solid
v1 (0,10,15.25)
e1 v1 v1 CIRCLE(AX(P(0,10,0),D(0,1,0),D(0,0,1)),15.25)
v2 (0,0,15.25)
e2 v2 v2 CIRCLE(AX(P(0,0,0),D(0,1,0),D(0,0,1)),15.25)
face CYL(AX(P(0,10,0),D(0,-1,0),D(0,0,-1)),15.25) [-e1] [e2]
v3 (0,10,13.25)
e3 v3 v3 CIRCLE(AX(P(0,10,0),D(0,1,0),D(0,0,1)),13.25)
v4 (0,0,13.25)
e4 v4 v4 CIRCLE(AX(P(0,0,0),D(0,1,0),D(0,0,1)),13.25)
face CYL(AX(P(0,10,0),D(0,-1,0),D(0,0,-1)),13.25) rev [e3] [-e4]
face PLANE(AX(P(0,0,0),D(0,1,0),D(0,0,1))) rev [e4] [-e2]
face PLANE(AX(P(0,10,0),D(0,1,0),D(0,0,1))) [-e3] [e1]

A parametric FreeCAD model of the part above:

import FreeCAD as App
import Part
import Sketcher

V = App.Vector

doc = App.newDocument("Part")
params = doc.addObject("Spreadsheet::Sheet", "Params")
for row, (alias, value) in enumerate([
    ("sketch1_diameter", "30.5 mm"),
    ("sketch1_diameter2", "26.5 mm"),
    ("pad1_length", "10 mm"),
], start=1):
    params.set(f"A{row}", alias)
    params.set(f"B{row}", "=" + value)
    params.setAlias(f"B{row}", alias)

body = doc.addObject("PartDesign::Body", "Body")

# Sketch on XZ plane
sketch1 = body.newObject("Sketcher::SketchObject", "Sketch")
sketch1.AttachmentSupport = (doc.getObject("XZ_Plane"), [""])
sketch1.MapMode = "FlatFace"
sketch1.addGeometry([
    Part.Circle(V(0, 0, 0), V(0, 0, 1), 15),
    Part.Circle(V(0, 0, 0), V(0, 0, 1), 13),
], False)
sketch1.addConstraint([
    Sketcher.Constraint("Coincident", 0, 3, -1, 1),
    Sketcher.Constraint("Coincident", 1, 3, -1, 1),
    Sketcher.Constraint("Diameter", 0, 30.5),
    Sketcher.Constraint("Diameter", 1, 26.5),
])
sketch1.setExpression("Constraints[2]", "Params.sketch1_diameter")
sketch1.setExpression("Constraints[3]", "Params.sketch1_diameter2")
pad1 = body.newObject("PartDesign::Pad", "Pad")
pad1.Profile = sketch1
pad1.setExpression("Length", "Params.pad1_length")
pad1.Reversed = True

doc.recompute()
